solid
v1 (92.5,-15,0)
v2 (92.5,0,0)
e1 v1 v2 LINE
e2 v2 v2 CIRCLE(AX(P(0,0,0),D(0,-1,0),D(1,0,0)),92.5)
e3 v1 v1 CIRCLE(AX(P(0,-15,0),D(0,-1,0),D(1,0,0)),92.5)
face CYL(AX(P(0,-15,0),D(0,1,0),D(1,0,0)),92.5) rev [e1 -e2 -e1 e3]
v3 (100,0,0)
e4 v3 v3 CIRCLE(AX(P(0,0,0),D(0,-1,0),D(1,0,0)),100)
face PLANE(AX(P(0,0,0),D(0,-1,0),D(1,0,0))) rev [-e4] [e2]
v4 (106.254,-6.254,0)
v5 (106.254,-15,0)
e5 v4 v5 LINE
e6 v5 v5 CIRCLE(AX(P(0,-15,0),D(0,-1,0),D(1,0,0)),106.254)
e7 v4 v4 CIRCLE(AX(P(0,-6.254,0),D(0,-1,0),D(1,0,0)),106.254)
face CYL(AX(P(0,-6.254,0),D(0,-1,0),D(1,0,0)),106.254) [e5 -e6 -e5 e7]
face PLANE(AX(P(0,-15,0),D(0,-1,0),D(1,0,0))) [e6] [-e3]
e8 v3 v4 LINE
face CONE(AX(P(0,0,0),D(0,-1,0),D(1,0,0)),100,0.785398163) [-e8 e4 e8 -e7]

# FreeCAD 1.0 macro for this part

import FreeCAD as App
import Part
import Sketcher
Q = App.Units.Quantity


def add_polygon(sketch, points):
    """Adds a closed chain of lines whose ends are joined by coincident constraints."""
    first, n = sketch.GeometryCount, len(points)
    for a, b in zip(points, points[1:] + points[:1]):
        sketch.addGeometry(Part.LineSegment(App.Vector(*a, 0), App.Vector(*b, 0)), False)
    for i in range(n):
        sketch.addConstraint(Sketcher.Constraint("Coincident", first + i, 2, first + (i + 1) % n, 1))

doc = App.newDocument("Part")
body = doc.addObject("PartDesign::Body", "Body")

# Sketch on XY plane
sketch1 = body.newObject("Sketcher::SketchObject", "Sketch")
sketch1.AttachmentSupport = (doc.getObject("XY_Plane"), [""])
sketch1.MapMode = "FlatFace"
add_polygon(sketch1, [(100, 0), (92, 0), (92, -15), (106, -15), (106, -6)])  # lines 0-4
sketch1.addConstraint([
    Sketcher.Constraint("Horizontal", 0),
    Sketcher.Constraint("Vertical", 1),
    Sketcher.Constraint("Horizontal", 2),
    Sketcher.Constraint("Vertical", 3),
    Sketcher.Constraint("PointOnObject", 0, 2, -1),
    Sketcher.Constraint("DistanceY", 1, 2, 1, 1, Q("15 mm")),
    Sketcher.Constraint("Angle", 4, Q("135 deg")),
    Sketcher.Constraint("DistanceX", -1, 1, 4, 2, Q("100 mm")),
    Sketcher.Constraint("DistanceX", -1, 1, 0, 2, Q("92.5 mm")),
    Sketcher.Constraint("DistanceX", 2, 1, 2, 2, Q("13.754 mm")),
])
revolution = body.newObject("PartDesign::Revolution", "Revolution")
revolution.Profile = sketch1
revolution.ReferenceAxis = (sketch1, ["V_Axis"])
revolution.Angle = 360

doc.recompute()
